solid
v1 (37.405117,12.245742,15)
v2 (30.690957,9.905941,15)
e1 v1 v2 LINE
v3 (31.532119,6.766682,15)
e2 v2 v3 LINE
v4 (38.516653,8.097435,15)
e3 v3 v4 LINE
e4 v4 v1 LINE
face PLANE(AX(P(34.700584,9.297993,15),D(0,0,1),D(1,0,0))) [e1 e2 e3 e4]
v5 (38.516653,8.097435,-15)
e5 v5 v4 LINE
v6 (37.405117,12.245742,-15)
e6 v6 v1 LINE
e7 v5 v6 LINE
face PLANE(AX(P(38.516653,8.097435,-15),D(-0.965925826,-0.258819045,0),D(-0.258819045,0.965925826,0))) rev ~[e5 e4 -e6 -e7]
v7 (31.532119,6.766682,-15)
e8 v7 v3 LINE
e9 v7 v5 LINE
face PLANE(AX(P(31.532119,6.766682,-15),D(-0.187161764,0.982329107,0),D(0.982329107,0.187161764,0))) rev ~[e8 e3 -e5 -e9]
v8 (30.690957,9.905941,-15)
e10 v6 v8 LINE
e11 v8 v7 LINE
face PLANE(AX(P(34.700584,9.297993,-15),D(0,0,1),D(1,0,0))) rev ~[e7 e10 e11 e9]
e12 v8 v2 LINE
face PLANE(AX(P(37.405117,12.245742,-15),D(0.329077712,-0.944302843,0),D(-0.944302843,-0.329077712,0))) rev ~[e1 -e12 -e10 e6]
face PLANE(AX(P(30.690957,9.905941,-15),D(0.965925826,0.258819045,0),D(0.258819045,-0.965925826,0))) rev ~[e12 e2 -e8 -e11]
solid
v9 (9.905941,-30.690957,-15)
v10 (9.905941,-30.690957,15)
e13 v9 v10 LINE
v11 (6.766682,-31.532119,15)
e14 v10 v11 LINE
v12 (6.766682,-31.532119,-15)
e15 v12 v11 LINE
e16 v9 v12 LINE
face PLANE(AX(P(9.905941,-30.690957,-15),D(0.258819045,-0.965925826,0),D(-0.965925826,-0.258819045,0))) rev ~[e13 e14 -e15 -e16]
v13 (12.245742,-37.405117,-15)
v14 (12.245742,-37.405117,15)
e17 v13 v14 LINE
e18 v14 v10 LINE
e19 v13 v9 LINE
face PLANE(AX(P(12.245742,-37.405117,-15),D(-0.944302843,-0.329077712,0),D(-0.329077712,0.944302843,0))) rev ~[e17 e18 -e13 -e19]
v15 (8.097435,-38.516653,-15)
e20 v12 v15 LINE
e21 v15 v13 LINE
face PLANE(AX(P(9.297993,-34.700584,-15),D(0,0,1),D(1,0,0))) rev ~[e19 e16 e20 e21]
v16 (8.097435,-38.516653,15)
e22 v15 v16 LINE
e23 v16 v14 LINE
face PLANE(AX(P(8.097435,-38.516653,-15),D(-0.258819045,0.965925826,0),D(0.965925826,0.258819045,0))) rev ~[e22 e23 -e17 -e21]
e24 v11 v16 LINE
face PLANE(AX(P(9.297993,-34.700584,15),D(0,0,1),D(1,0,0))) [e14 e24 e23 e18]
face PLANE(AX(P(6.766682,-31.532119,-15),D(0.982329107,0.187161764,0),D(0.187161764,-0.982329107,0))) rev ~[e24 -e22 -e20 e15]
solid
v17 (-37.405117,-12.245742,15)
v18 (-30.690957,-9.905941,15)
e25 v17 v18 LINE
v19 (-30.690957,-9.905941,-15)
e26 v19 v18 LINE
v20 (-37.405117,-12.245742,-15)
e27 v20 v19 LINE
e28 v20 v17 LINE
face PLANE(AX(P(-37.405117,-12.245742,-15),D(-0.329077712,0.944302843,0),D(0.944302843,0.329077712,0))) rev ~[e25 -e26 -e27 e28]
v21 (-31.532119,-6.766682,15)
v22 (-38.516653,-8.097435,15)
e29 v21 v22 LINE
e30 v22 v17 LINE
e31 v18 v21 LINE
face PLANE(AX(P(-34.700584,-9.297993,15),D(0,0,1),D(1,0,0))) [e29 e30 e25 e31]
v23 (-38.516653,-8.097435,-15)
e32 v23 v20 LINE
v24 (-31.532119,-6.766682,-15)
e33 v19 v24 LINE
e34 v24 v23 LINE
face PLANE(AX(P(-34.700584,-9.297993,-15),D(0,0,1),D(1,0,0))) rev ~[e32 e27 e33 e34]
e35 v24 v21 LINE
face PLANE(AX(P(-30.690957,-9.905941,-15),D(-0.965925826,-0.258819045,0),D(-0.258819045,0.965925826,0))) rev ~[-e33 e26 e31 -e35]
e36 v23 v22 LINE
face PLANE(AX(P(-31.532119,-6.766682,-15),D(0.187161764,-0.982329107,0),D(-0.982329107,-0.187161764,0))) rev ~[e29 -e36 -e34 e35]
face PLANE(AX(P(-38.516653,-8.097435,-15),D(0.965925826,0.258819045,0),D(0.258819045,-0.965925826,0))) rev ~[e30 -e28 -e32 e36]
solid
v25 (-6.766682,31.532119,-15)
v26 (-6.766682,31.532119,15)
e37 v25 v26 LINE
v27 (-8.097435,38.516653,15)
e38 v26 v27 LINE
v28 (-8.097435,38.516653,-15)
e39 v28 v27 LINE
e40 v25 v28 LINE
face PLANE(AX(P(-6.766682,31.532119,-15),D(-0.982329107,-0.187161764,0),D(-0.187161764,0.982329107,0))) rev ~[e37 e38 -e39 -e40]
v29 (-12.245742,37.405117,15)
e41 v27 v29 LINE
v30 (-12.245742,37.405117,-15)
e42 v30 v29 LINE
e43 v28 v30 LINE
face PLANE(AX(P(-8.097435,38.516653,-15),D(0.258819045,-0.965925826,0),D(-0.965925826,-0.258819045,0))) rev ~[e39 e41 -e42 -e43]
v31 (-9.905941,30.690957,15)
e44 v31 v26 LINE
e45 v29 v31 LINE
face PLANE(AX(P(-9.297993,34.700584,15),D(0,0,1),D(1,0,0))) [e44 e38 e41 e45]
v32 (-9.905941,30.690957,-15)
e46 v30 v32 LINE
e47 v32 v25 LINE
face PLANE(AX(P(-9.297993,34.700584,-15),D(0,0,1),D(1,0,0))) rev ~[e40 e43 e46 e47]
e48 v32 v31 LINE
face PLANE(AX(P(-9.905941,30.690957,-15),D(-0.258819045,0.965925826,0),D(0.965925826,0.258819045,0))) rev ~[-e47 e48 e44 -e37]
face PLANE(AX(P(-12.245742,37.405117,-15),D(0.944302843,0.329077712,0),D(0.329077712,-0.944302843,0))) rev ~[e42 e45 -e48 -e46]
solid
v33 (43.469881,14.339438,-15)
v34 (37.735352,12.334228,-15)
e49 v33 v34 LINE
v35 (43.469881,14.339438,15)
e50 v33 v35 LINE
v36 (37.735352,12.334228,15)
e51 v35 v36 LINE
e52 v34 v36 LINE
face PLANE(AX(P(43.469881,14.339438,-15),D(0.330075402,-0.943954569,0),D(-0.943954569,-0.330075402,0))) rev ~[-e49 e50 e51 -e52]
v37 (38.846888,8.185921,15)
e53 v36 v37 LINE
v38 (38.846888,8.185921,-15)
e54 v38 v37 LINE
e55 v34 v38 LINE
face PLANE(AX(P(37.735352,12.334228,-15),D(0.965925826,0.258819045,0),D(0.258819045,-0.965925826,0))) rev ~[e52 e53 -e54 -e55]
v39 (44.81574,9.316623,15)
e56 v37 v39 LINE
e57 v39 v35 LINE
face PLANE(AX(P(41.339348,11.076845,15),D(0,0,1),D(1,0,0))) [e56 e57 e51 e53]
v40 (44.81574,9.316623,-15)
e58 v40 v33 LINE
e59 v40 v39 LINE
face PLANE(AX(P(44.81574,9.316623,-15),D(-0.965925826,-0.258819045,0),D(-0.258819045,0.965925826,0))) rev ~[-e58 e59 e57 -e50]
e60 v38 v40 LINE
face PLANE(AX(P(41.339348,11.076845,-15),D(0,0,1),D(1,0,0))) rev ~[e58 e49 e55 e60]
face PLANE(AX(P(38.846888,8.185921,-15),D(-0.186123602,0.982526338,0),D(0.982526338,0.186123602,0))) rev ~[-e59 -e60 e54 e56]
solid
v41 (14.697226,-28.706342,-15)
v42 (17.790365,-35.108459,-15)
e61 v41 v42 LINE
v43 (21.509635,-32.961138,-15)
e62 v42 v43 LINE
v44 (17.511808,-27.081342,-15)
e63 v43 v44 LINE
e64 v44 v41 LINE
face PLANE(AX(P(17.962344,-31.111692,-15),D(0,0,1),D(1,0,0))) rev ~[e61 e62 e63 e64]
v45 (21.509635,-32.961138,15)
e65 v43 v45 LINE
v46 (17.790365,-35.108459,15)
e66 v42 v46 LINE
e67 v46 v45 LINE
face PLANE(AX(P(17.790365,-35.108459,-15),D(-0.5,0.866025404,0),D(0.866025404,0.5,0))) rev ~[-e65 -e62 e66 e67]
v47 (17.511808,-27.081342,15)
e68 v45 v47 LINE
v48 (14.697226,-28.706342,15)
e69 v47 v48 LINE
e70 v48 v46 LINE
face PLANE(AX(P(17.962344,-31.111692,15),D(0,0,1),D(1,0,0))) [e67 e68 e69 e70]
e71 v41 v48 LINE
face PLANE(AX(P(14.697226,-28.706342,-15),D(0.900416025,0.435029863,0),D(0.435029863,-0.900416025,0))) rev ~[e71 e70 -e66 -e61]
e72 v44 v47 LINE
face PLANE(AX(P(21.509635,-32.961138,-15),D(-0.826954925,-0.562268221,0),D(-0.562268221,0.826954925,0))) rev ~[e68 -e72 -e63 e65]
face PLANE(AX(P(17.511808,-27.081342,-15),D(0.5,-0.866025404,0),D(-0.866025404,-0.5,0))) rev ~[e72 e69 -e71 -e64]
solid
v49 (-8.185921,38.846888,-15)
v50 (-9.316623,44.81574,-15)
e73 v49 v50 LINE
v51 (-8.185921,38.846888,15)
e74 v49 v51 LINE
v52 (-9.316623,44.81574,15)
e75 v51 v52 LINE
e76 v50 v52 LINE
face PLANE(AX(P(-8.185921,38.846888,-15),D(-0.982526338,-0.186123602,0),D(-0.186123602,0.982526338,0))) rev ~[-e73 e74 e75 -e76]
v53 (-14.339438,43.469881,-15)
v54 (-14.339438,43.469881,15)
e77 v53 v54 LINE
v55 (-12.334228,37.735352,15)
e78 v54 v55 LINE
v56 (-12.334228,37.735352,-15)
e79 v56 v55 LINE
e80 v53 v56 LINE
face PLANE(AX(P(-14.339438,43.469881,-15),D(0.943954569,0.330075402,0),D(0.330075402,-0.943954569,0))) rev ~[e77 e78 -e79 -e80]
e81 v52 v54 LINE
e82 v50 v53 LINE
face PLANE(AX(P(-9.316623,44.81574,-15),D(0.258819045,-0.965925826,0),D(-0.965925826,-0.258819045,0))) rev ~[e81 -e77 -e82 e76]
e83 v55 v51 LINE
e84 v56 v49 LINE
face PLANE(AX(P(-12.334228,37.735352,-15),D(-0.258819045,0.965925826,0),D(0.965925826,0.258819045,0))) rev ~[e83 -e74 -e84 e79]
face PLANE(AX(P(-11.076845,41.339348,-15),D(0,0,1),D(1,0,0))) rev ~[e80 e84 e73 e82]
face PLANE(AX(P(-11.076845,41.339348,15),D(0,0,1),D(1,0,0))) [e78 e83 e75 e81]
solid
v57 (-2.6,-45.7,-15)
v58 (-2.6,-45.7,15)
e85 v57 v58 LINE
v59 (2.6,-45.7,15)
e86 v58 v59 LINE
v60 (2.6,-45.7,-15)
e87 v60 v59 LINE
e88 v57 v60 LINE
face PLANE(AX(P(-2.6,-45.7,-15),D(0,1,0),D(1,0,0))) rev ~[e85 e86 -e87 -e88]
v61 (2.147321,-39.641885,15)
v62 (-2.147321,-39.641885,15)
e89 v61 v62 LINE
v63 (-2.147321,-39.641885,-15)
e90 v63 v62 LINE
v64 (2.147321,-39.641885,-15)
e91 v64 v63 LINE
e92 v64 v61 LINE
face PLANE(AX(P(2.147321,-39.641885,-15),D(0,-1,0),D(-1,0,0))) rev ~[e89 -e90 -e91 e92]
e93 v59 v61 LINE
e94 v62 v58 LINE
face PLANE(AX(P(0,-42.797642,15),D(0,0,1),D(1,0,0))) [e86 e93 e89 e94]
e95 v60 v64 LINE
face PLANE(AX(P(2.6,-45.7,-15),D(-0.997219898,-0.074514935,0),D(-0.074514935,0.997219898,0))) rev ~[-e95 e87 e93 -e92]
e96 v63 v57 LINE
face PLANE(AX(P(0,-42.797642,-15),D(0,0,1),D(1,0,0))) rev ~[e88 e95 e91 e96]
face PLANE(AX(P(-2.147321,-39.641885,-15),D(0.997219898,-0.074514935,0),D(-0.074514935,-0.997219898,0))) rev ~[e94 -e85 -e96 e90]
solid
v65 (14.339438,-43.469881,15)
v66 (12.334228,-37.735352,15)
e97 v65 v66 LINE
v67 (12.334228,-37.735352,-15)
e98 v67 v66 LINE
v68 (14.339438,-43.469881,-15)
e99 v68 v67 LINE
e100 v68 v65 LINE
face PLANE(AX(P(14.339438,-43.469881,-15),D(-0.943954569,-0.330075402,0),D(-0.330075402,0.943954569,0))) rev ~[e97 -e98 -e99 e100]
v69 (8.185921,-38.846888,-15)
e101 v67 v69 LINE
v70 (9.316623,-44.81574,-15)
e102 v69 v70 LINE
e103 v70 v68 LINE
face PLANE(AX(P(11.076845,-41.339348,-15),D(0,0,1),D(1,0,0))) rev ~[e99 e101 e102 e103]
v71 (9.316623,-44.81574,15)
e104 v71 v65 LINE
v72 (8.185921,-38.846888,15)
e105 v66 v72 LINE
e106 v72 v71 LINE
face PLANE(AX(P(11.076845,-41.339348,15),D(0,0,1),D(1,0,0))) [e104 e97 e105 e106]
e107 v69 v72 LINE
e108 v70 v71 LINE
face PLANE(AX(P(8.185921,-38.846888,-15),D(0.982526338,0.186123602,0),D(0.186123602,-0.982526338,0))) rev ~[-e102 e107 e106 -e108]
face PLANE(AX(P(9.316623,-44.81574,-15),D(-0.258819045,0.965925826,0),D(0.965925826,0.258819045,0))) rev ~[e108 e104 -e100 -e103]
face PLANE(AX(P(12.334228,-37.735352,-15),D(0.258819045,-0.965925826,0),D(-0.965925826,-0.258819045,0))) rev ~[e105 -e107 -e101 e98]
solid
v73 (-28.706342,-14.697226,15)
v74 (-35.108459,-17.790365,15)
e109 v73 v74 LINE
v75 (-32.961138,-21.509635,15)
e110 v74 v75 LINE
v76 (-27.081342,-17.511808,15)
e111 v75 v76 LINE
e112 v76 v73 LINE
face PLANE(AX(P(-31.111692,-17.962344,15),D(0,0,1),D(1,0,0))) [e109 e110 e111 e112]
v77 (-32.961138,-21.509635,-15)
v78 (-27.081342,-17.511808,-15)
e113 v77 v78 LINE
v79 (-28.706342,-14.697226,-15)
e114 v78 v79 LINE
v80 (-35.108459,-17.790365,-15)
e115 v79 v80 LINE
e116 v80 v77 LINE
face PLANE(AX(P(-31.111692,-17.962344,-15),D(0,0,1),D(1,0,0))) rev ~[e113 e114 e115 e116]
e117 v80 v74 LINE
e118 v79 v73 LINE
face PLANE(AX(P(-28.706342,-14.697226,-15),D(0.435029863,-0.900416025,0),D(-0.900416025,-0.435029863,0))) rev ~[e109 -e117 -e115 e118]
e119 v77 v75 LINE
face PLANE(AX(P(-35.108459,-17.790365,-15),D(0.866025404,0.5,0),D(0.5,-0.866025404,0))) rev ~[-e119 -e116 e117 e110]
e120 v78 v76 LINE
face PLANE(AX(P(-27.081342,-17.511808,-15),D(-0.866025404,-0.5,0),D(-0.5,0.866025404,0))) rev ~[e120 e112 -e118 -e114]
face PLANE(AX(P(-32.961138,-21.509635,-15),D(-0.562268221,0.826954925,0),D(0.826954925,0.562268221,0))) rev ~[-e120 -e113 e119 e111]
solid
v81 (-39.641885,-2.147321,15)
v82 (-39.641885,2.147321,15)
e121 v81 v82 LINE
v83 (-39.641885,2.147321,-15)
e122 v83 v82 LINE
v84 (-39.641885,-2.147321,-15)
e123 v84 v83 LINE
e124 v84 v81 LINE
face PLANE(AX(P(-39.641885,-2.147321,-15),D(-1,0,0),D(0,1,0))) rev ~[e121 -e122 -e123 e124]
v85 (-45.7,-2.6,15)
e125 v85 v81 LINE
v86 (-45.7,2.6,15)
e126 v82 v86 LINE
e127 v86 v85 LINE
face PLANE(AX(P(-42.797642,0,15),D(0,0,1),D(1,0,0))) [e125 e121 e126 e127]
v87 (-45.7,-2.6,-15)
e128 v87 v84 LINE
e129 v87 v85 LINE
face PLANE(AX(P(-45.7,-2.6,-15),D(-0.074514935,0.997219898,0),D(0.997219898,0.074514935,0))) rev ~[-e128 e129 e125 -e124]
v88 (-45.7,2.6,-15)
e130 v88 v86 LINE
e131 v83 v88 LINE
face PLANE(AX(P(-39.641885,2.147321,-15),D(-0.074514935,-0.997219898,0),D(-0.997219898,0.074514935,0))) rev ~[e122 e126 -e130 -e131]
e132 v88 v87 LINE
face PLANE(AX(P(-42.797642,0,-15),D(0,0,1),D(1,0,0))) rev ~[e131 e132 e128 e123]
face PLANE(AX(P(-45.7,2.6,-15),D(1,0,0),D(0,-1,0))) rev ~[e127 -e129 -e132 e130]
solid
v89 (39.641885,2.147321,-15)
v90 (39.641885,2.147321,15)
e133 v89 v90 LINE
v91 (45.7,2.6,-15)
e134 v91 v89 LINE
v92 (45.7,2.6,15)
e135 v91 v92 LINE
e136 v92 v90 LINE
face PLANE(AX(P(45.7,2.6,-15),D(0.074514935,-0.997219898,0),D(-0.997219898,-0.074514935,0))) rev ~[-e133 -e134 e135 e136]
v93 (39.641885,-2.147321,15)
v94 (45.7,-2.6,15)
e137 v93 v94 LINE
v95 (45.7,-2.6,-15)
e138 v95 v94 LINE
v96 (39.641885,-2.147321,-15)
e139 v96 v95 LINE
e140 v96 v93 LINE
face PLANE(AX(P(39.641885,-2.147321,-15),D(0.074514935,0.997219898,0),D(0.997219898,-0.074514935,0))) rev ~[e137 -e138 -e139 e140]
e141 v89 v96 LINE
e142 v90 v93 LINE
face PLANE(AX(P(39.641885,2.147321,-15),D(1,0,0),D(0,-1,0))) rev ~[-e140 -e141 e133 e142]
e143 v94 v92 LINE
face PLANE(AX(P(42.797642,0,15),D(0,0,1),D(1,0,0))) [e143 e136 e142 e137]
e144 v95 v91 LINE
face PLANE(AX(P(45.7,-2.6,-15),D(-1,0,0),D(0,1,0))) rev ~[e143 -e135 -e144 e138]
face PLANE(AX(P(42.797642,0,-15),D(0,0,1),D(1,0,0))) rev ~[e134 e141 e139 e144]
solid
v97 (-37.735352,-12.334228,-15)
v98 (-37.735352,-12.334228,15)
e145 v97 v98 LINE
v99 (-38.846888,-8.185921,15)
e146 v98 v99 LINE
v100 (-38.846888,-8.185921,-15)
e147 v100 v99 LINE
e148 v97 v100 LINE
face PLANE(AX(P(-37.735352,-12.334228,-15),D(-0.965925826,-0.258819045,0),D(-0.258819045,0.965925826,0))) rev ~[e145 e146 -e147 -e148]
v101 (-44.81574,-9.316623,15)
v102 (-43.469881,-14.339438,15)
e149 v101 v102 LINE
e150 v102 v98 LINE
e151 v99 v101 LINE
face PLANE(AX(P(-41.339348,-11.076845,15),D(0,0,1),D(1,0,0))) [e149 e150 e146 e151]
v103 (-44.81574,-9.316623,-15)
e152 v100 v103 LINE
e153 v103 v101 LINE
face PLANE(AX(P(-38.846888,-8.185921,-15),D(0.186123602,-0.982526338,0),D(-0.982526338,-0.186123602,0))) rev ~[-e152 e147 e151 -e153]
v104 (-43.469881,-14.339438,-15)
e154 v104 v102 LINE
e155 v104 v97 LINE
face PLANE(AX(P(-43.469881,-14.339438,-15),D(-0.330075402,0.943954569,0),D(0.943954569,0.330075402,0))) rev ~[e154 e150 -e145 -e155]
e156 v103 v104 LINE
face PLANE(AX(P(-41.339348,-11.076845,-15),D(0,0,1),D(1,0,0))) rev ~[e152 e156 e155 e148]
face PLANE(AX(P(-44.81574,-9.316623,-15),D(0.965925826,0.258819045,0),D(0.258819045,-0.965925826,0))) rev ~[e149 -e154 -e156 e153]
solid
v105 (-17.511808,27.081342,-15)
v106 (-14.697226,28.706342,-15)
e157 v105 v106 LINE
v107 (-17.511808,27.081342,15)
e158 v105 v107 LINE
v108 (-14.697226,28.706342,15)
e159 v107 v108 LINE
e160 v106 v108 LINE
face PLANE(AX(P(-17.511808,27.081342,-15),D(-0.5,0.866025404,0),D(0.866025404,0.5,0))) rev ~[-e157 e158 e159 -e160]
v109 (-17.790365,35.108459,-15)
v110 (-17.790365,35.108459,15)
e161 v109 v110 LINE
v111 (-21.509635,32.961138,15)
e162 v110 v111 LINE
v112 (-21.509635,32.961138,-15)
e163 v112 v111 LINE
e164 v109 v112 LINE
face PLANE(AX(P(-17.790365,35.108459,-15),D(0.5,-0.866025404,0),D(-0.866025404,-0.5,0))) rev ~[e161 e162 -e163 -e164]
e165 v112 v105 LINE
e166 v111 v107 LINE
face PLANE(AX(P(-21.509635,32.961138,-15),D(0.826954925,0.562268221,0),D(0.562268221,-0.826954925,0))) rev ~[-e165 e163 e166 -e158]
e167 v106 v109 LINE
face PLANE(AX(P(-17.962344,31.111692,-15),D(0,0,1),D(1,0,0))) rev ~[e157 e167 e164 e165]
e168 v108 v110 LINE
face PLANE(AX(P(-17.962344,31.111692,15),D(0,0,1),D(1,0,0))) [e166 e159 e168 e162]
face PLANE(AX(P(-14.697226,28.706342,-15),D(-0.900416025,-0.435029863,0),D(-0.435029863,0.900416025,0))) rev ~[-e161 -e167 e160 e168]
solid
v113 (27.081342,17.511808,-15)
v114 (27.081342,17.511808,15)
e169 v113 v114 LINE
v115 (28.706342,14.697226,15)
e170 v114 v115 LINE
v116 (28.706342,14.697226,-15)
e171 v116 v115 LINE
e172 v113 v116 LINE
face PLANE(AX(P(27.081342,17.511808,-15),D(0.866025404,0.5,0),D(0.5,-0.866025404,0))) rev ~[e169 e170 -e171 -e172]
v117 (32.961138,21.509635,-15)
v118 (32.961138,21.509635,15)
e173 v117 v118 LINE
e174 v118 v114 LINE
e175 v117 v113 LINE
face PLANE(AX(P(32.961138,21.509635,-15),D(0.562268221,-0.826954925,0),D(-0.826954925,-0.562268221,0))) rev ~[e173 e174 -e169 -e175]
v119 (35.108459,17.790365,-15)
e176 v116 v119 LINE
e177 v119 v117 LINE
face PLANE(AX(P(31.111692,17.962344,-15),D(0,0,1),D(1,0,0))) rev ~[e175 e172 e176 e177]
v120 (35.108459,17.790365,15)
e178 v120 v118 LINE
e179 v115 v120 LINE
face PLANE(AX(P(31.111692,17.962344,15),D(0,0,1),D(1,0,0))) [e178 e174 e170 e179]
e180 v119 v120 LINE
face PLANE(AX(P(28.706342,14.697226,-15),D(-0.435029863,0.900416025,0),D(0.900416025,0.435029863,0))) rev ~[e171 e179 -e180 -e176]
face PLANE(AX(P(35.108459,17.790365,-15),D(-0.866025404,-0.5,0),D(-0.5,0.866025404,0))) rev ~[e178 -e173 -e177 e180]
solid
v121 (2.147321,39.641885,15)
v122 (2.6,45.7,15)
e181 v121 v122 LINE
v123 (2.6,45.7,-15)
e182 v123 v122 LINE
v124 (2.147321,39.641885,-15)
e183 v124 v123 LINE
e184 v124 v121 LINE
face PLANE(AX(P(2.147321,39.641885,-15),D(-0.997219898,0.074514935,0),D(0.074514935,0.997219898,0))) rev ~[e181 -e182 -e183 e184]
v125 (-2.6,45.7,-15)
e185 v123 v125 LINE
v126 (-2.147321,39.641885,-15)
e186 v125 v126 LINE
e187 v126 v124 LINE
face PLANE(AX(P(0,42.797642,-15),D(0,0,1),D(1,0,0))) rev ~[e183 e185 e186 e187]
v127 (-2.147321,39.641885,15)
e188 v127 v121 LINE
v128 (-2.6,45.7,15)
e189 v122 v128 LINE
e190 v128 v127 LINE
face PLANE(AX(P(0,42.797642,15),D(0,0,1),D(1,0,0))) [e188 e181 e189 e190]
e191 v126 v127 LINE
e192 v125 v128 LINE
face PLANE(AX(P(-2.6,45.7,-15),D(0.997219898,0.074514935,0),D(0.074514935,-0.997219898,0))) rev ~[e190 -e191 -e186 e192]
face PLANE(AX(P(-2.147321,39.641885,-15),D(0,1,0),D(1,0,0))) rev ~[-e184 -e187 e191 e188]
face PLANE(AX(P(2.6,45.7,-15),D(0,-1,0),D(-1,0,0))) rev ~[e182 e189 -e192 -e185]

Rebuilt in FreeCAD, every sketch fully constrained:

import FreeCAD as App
import Part
import Sketcher
from FreeCAD import Vector
Q = App.Units.Quantity

doc = App.newDocument("Part")
params = doc.addObject("Spreadsheet::Sheet", "Params")
for row, (alias, value) in enumerate([
    ("sketch1_height", "5.2 mm"),
    ("pad1_length", "30 mm"),
    ("sketch2_length", "3.25 mm"),
    ("pad2_length", "30 mm"),
    ("sketch3_length", "5.2 mm"),
    ("pad3_length", "30 mm"),
    ("sketch4_length", "3.25 mm"),
    ("pad4_length", "30 mm"),
    ("sketch5_width", "5.2 mm"),
    ("pad5_length", "30 mm"),
    ("sketch6_length", "3.25 mm"),
    ("pad6_length", "30 mm"),
    ("sketch7_length", "5.2 mm"),
    ("pad7_length", "30 mm"),
    ("sketch8_length", "3.25 mm"),
    ("pad8_length", "30 mm"),
    ("sketch9_height", "5.2 mm"),
    ("pad9_length", "30 mm"),
    ("sketch10_length", "3.25 mm"),
    ("pad10_length", "30 mm"),
    ("sketch11_length", "5.2 mm"),
    ("pad11_length", "30 mm"),
    ("sketch12_length", "3.25 mm"),
    ("pad12_length", "30 mm"),
    ("sketch13_width", "5.2 mm"),
    ("pad13_length", "30 mm"),
    ("sketch14_length", "3.25 mm"),
    ("pad14_length", "30 mm"),
    ("sketch15_length", "5.2 mm"),
    ("pad15_length", "30 mm"),
    ("sketch16_length", "3.25 mm"),
    ("pad16_length", "30 mm"),
], start=1):
    params.set(f"A{row}", alias)
    params.set(f"B{row}", "=" + value)
    params.setAlias(f"B{row}", alias)

body = doc.addObject("PartDesign::Body", "Body")

# Sketch on XY plane
sketch1 = body.newObject("Sketcher::SketchObject", "Sketch")
sketch1.AttachmentSupport = (doc.getObject("XY_Plane"), [""])
sketch1.MapMode = "FlatFace"
sketch1.AttachmentOffset = App.Placement(Vector(0, 0, -15), App.Rotation())
sketch1.addGeometry([
    Part.LineSegment(Vector(39.6, -2.1, 0), Vector(45.7, -2.6, 0)),
    Part.LineSegment(Vector(45.7, -2.6, 0), Vector(45.7, 2.6, 0)),
    Part.LineSegment(Vector(45.7, 2.6, 0), Vector(39.6, 2.1, 0)),
    Part.LineSegment(Vector(39.6, 2.1, 0), Vector(39.6, -2.1, 0)),
], False)
sketch1.addConstraint([
    Sketcher.Constraint("Coincident", 0, 2, 1, 1),
    Sketcher.Constraint("Coincident", 1, 2, 2, 1),
    Sketcher.Constraint("Coincident", 2, 2, 3, 1),
    Sketcher.Constraint("Coincident", 3, 2, 0, 1),
    Sketcher.Constraint("Vertical", 1),
    Sketcher.Constraint("Vertical", 3),
    Sketcher.Constraint("Equal", 0, 2),
    Sketcher.Constraint("DistanceY", 1, 1, 1, 2, 5.2),
    Sketcher.Constraint("DistanceX", -1, 1, 0, 2, 45.7),
    Sketcher.Constraint("DistanceY", 0, 2, -1, 1, 2.6),
    Sketcher.Constraint("DistanceY", 3, 2, 3, 1, 4.294643),
    Sketcher.Constraint("Distance", 0, 6.075005),
])
sketch1.setExpression("Constraints[7]", "Params.sketch1_height")
pad1 = body.newObject("PartDesign::Pad", "Pad")
pad1.Profile = sketch1
pad1.setExpression("Length", "Params.pad1_length")
body2 = doc.addObject("PartDesign::Body", "Body001")

# Sketch on XY plane
sketch2 = body2.newObject("Sketcher::SketchObject", "Sketch001")
sketch2.AttachmentSupport = (doc.getObject("XY_Plane001"), [""])
sketch2.MapMode = "FlatFace"
sketch2.AttachmentOffset = App.Placement(Vector(0, 0, -15), App.Rotation())
sketch2.addGeometry([
    Part.LineSegment(Vector(31.5, 6.8, 0), Vector(38.5, 8.1, 0)),
    Part.LineSegment(Vector(38.5, 8.1, 0), Vector(37.4, 12.2, 0)),
    Part.LineSegment(Vector(37.4, 12.2, 0), Vector(30.7, 9.9, 0)),
    Part.LineSegment(Vector(30.7, 9.9, 0), Vector(31.5, 6.8, 0)),
], False)
sketch2.addConstraint([
    Sketcher.Constraint("Coincident", 0, 2, 1, 1),
    Sketcher.Constraint("Coincident", 1, 2, 2, 1),
    Sketcher.Constraint("Coincident", 2, 2, 3, 1),
    Sketcher.Constraint("Coincident", 3, 2, 0, 1),
    Sketcher.Constraint("Parallel", 1, 3),
    Sketcher.Constraint("Equal", 0, 2),
    Sketcher.Constraint("Angle", 1, Q("105 deg")),
    Sketcher.Constraint("Distance", 3, 3.25),
    Sketcher.Constraint("DistanceX", 3, 2, 1, 2, 5.872999),
    Sketcher.Constraint("DistanceY", 2, 2, 1, 2, 2.339801),
    Sketcher.Constraint("DistanceY", -1, 1, 1, 2, 12.245742),
    Sketcher.Constraint("DistanceX", -1, 1, 3, 2, 31.532119),
])
sketch2.setExpression("Constraints[7]", "Params.sketch2_length")
pad2 = body2.newObject("PartDesign::Pad", "Pad001")
pad2.Profile = sketch2
pad2.setExpression("Length", "Params.pad2_length")
body3 = doc.addObject("PartDesign::Body", "Body002")

# Sketch on XY plane
sketch3 = body3.newObject("Sketcher::SketchObject", "Sketch002")
sketch3.AttachmentSupport = (doc.getObject("XY_Plane002"), [""])
sketch3.MapMode = "FlatFace"
sketch3.AttachmentOffset = App.Placement(Vector(0, 0, -15), App.Rotation())
sketch3.addGeometry([
    Part.LineSegment(Vector(38.8, 8.2, 0), Vector(44.8, 9.3, 0)),
    Part.LineSegment(Vector(44.8, 9.3, 0), Vector(43.5, 14.3, 0)),
    Part.LineSegment(Vector(43.5, 14.3, 0), Vector(37.7, 12.3, 0)),
    Part.LineSegment(Vector(37.7, 12.3, 0), Vector(38.8, 8.2, 0)),
], False)
sketch3.addConstraint([
    Sketcher.Constraint("Coincident", 0, 2, 1, 1),
    Sketcher.Constraint("Coincident", 1, 2, 2, 1),
    Sketcher.Constraint("Coincident", 2, 2, 3, 1),
    Sketcher.Constraint("Coincident", 3, 2, 0, 1),
    Sketcher.Constraint("Parallel", 1, 3),
    Sketcher.Constraint("Equal", 0, 2),
    Sketcher.Constraint("Angle", 1, Q("105 deg")),
    Sketcher.Constraint("Distance", 1, 5.2),
    Sketcher.Constraint("DistanceY", 3, 2, 0, 2, 1.130702),
    Sketcher.Constraint("DistanceX", -1, 1, 0, 2, 44.81574),
    Sketcher.Constraint("DistanceY", -1, 1, 3, 2, 8.185921),
    Sketcher.Constraint("DistanceX", 2, 2, 1, 2, 5.734528),
])
sketch3.setExpression("Constraints[7]", "Params.sketch3_length")
pad3 = body3.newObject("PartDesign::Pad", "Pad002")
pad3.Profile = sketch3
pad3.setExpression("Length", "Params.pad3_length")
body4 = doc.addObject("PartDesign::Body", "Body003")

# Sketch on XY plane
sketch4 = body4.newObject("Sketcher::SketchObject", "Sketch003")
sketch4.AttachmentSupport = (doc.getObject("XY_Plane003"), [""])
sketch4.MapMode = "FlatFace"
sketch4.AttachmentOffset = App.Placement(Vector(0, 0, -15), App.Rotation())
sketch4.addGeometry([
    Part.LineSegment(Vector(28.7, 14.7, 0), Vector(35.1, 17.8, 0)),
    Part.LineSegment(Vector(35.1, 17.8, 0), Vector(33, 21.5, 0)),
    Part.LineSegment(Vector(33, 21.5, 0), Vector(27.1, 17.5, 0)),
    Part.LineSegment(Vector(27.1, 17.5, 0), Vector(28.7, 14.7, 0)),
], False)
sketch4.addConstraint([
    Sketcher.Constraint("Coincident", 0, 2, 1, 1),
    Sketcher.Constraint("Coincident", 1, 2, 2, 1),
    Sketcher.Constraint("Coincident", 2, 2, 3, 1),
    Sketcher.Constraint("Coincident", 3, 2, 0, 1),
    Sketcher.Constraint("Parallel", 1, 3),
    Sketcher.Constraint("Equal", 0, 2),
    Sketcher.Constraint("Angle", 1, Q("120 deg")),
    Sketcher.Constraint("Distance", 3, 3.25),
    Sketcher.Constraint("DistanceX", -1, 1, 0, 2, 35.108459),
    Sketcher.Constraint("DistanceX", -1, 1, 2, 2, 27.081342),
    Sketcher.Constraint("DistanceY", -1, 1, 2, 2, 17.511808),
    Sketcher.Constraint("DistanceX", 1, 2, 0, 2, 2.147321),
])
sketch4.setExpression("Constraints[7]", "Params.sketch4_length")
pad4 = body4.newObject("PartDesign::Pad", "Pad003")
pad4.Profile = sketch4
pad4.setExpression("Length", "Params.pad4_length")
body5 = doc.addObject("PartDesign::Body", "Body004")

# Sketch on XY plane
sketch5 = body5.newObject("Sketcher::SketchObject", "Sketch004")
sketch5.AttachmentSupport = (doc.getObject("XY_Plane004"), [""])
sketch5.MapMode = "FlatFace"
sketch5.AttachmentOffset = App.Placement(Vector(0, 0, -15), App.Rotation())
sketch5.addGeometry([
    Part.LineSegment(Vector(2.1, 39.6, 0), Vector(2.6, 45.7, 0)),
    Part.LineSegment(Vector(2.6, 45.7, 0), Vector(-2.6, 45.7, 0)),
    Part.LineSegment(Vector(-2.6, 45.7, 0), Vector(-2.1, 39.6, 0)),
    Part.LineSegment(Vector(-2.1, 39.6, 0), Vector(2.1, 39.6, 0)),
], False)
sketch5.addConstraint([
    Sketcher.Constraint("Coincident", 0, 2, 1, 1),
    Sketcher.Constraint("Coincident", 1, 2, 2, 1),
    Sketcher.Constraint("Coincident", 2, 2, 3, 1),
    Sketcher.Constraint("Coincident", 3, 2, 0, 1),
    Sketcher.Constraint("Horizontal", 1),
    Sketcher.Constraint("Horizontal", 3),
    Sketcher.Constraint("Equal", 0, 2),
    Sketcher.Constraint("DistanceX", 1, 2, 1, 1, 5.2),
    Sketcher.Constraint("DistanceX", -1, 1, 0, 2, 2.6),
    Sketcher.Constraint("DistanceY", -1, 1, 0, 2, 45.7),
    Sketcher.Constraint("DistanceX", 3, 1, 3, 2, 4.294643),
    Sketcher.Constraint("Distance", 0, 6.075005),
])
sketch5.setExpression("Constraints[7]", "Params.sketch5_width")
pad5 = body5.newObject("PartDesign::Pad", "Pad004")
pad5.Profile = sketch5
pad5.setExpression("Length", "Params.pad5_length")
body6 = doc.addObject("PartDesign::Body", "Body005")

# Sketch on XY plane
sketch6 = body6.newObject("Sketcher::SketchObject", "Sketch005")
sketch6.AttachmentSupport = (doc.getObject("XY_Plane005"), [""])
sketch6.MapMode = "FlatFace"
sketch6.AttachmentOffset = App.Placement(Vector(0, 0, -15), App.Rotation())
sketch6.addGeometry([
    Part.LineSegment(Vector(-6.8, 31.5, 0), Vector(-8.1, 38.5, 0)),
    Part.LineSegment(Vector(-8.1, 38.5, 0), Vector(-12.2, 37.4, 0)),
    Part.LineSegment(Vector(-12.2, 37.4, 0), Vector(-9.9, 30.7, 0)),
    Part.LineSegment(Vector(-9.9, 30.7, 0), Vector(-6.8, 31.5, 0)),
], False)
sketch6.addConstraint([
    Sketcher.Constraint("Coincident", 0, 2, 1, 1),
    Sketcher.Constraint("Coincident", 1, 2, 2, 1),
    Sketcher.Constraint("Coincident", 2, 2, 3, 1),
    Sketcher.Constraint("Coincident", 3, 2, 0, 1),
    Sketcher.Constraint("Parallel", 1, 3),
    Sketcher.Constraint("Equal", 0, 2),
    Sketcher.Constraint("Angle", 1, Q("-165 deg")),
    Sketcher.Constraint("Distance", 3, 3.25),
    Sketcher.Constraint("DistanceY", 3, 2, 1, 2, 5.872999),
    Sketcher.Constraint("DistanceX", 1, 2, 2, 2, 2.339801),
    Sketcher.Constraint("DistanceX", 1, 2, -1, 1, 12.245742),
    Sketcher.Constraint("DistanceY", -1, 1, 3, 2, 31.532119),
])
sketch6.setExpression("Constraints[7]", "Params.sketch6_length")
pad6 = body6.newObject("PartDesign::Pad", "Pad005")
pad6.Profile = sketch6
pad6.setExpression("Length", "Params.pad6_length")
body7 = doc.addObject("PartDesign::Body", "Body006")

# Sketch on XY plane
sketch7 = body7.newObject("Sketcher::SketchObject", "Sketch006")
sketch7.AttachmentSupport = (doc.getObject("XY_Plane006"), [""])
sketch7.MapMode = "FlatFace"
sketch7.AttachmentOffset = App.Placement(Vector(0, 0, -15), App.Rotation())
sketch7.addGeometry([
    Part.LineSegment(Vector(-8.2, 38.8, 0), Vector(-9.3, 44.8, 0)),
    Part.LineSegment(Vector(-9.3, 44.8, 0), Vector(-14.3, 43.5, 0)),
    Part.LineSegment(Vector(-14.3, 43.5, 0), Vector(-12.3, 37.7, 0)),
    Part.LineSegment(Vector(-12.3, 37.7, 0), Vector(-8.2, 38.8, 0)),
], False)
sketch7.addConstraint([
    Sketcher.Constraint("Coincident", 0, 2, 1, 1),
    Sketcher.Constraint("Coincident", 1, 2, 2, 1),
    Sketcher.Constraint("Coincident", 2, 2, 3, 1),
    Sketcher.Constraint("Coincident", 3, 2, 0, 1),
    Sketcher.Constraint("Parallel", 1, 3),
    Sketcher.Constraint("Equal", 0, 2),
    Sketcher.Constraint("Angle", 1, Q("-165 deg")),
    Sketcher.Constraint("Distance", 1, 5.2),
    Sketcher.Constraint("DistanceX", 0, 2, 3, 2, 1.130702),
    Sketcher.Constraint("DistanceY", -1, 1, 0, 2, 44.81574),
    Sketcher.Constraint("DistanceX", 3, 2, -1, 1, 8.185921),
    Sketcher.Constraint("DistanceX", 1, 2, 2, 2, 2.00521),
])
sketch7.setExpression("Constraints[7]", "Params.sketch7_length")
pad7 = body7.newObject("PartDesign::Pad", "Pad006")
pad7.Profile = sketch7
pad7.setExpression("Length", "Params.pad7_length")
body8 = doc.addObject("PartDesign::Body", "Body007")

# Sketch on XY plane
sketch8 = body8.newObject("Sketcher::SketchObject", "Sketch007")
sketch8.AttachmentSupport = (doc.getObject("XY_Plane007"), [""])
sketch8.MapMode = "FlatFace"
sketch8.AttachmentOffset = App.Placement(Vector(0, 0, -15), App.Rotation())
sketch8.addGeometry([
    Part.LineSegment(Vector(-14.7, 28.7, 0), Vector(-17.8, 35.1, 0)),
    Part.LineSegment(Vector(-17.8, 35.1, 0), Vector(-21.5, 33, 0)),
    Part.LineSegment(Vector(-21.5, 33, 0), Vector(-17.5, 27.1, 0)),
    Part.LineSegment(Vector(-17.5, 27.1, 0), Vector(-14.7, 28.7, 0)),
], False)
sketch8.addConstraint([
    Sketcher.Constraint("Coincident", 0, 2, 1, 1),
    Sketcher.Constraint("Coincident", 1, 2, 2, 1),
    Sketcher.Constraint("Coincident", 2, 2, 3, 1),
    Sketcher.Constraint("Coincident", 3, 2, 0, 1),
    Sketcher.Constraint("Parallel", 1, 3),
    Sketcher.Constraint("Equal", 0, 2),
    Sketcher.Constraint("Angle", 1, Q("-150 deg")),
    Sketcher.Constraint("Distance", 3, 3.25),
    Sketcher.Constraint("DistanceY", -1, 1, 0, 2, 35.108459),
    Sketcher.Constraint("DistanceX", 2, 2, -1, 1, 17.511808),
    Sketcher.Constraint("DistanceY", -1, 1, 2, 2, 27.081342),
    Sketcher.Constraint("DistanceX", 1, 2, 0, 2, 3.71927),
])
sketch8.setExpression("Constraints[7]", "Params.sketch8_length")
pad8 = body8.newObject("PartDesign::Pad", "Pad007")
pad8.Profile = sketch8
pad8.setExpression("Length", "Params.pad8_length")
body9 = doc.addObject("PartDesign::Body", "Body008")

# Sketch on XY plane
sketch9 = body9.newObject("Sketcher::SketchObject", "Sketch008")
sketch9.AttachmentSupport = (doc.getObject("XY_Plane008"), [""])
sketch9.MapMode = "FlatFace"
sketch9.AttachmentOffset = App.Placement(Vector(0, 0, -15), App.Rotation())
sketch9.addGeometry([
    Part.LineSegment(Vector(-39.6, 2.1, 0), Vector(-45.7, 2.6, 0)),
    Part.LineSegment(Vector(-45.7, 2.6, 0), Vector(-45.7, -2.6, 0)),
    Part.LineSegment(Vector(-45.7, -2.6, 0), Vector(-39.6, -2.1, 0)),
    Part.LineSegment(Vector(-39.6, -2.1, 0), Vector(-39.6, 2.1, 0)),
], False)
sketch9.addConstraint([
    Sketcher.Constraint("Coincident", 0, 2, 1, 1),
    Sketcher.Constraint("Coincident", 1, 2, 2, 1),
    Sketcher.Constraint("Coincident", 2, 2, 3, 1),
    Sketcher.Constraint("Coincident", 3, 2, 0, 1),
    Sketcher.Constraint("Vertical", 1),
    Sketcher.Constraint("Vertical", 3),
    Sketcher.Constraint("Equal", 0, 2),
    Sketcher.Constraint("DistanceY", 1, 2, 1, 1, 5.2),
    Sketcher.Constraint("DistanceX", 0, 2, -1, 1, 45.7),
    Sketcher.Constraint("DistanceY", -1, 1, 0, 2, 2.6),
    Sketcher.Constraint("DistanceY", 3, 1, 3, 2, 4.294643),
    Sketcher.Constraint("Distance", 0, 6.075005),
])
sketch9.setExpression("Constraints[7]", "Params.sketch9_height")
pad9 = body9.newObject("PartDesign::Pad", "Pad008")
pad9.Profile = sketch9
pad9.setExpression("Length", "Params.pad9_length")
body10 = doc.addObject("PartDesign::Body", "Body009")

# Sketch on XY plane
sketch10 = body10.newObject("Sketcher::SketchObject", "Sketch009")
sketch10.AttachmentSupport = (doc.getObject("XY_Plane009"), [""])
sketch10.MapMode = "FlatFace"
sketch10.AttachmentOffset = App.Placement(Vector(0, 0, -15), App.Rotation())
sketch10.addGeometry([
    Part.LineSegment(Vector(-31.5, -6.8, 0), Vector(-38.5, -8.1, 0)),
    Part.LineSegment(Vector(-38.5, -8.1, 0), Vector(-37.4, -12.2, 0)),
    Part.LineSegment(Vector(-37.4, -12.2, 0), Vector(-30.7, -9.9, 0)),
    Part.LineSegment(Vector(-30.7, -9.9, 0), Vector(-31.5, -6.8, 0)),
], False)
sketch10.addConstraint([
    Sketcher.Constraint("Coincident", 0, 2, 1, 1),
    Sketcher.Constraint("Coincident", 1, 2, 2, 1),
    Sketcher.Constraint("Coincident", 2, 2, 3, 1),
    Sketcher.Constraint("Coincident", 3, 2, 0, 1),
    Sketcher.Constraint("Parallel", 1, 3),
    Sketcher.Constraint("Equal", 0, 2),
    Sketcher.Constraint("Angle", 1, Q("-75 deg")),
    Sketcher.Constraint("Distance", 3, 3.25),
    Sketcher.Constraint("DistanceX", 1, 2, 3, 2, 5.872999),
    Sketcher.Constraint("DistanceY", 1, 2, 2, 2, 2.339801),
    Sketcher.Constraint("DistanceY", 1, 2, -1, 1, 12.245742),
    Sketcher.Constraint("DistanceX", 3, 2, -1, 1, 31.532119),
])
sketch10.setExpression("Constraints[7]", "Params.sketch10_length")
pad10 = body10.newObject("PartDesign::Pad", "Pad009")
pad10.Profile = sketch10
pad10.setExpression("Length", "Params.pad10_length")
body11 = doc.addObject("PartDesign::Body", "Body010")

# Sketch on XY plane
sketch11 = body11.newObject("Sketcher::SketchObject", "Sketch010")
sketch11.AttachmentSupport = (doc.getObject("XY_Plane010"), [""])
sketch11.MapMode = "FlatFace"
sketch11.AttachmentOffset = App.Placement(Vector(0, 0, -15), App.Rotation())
sketch11.addGeometry([
    Part.LineSegment(Vector(-38.8, -8.2, 0), Vector(-44.8, -9.3, 0)),
    Part.LineSegment(Vector(-44.8, -9.3, 0), Vector(-43.5, -14.3, 0)),
    Part.LineSegment(Vector(-43.5, -14.3, 0), Vector(-37.7, -12.3, 0)),
    Part.LineSegment(Vector(-37.7, -12.3, 0), Vector(-38.8, -8.2, 0)),
], False)
sketch11.addConstraint([
    Sketcher.Constraint("Coincident", 0, 2, 1, 1),
    Sketcher.Constraint("Coincident", 1, 2, 2, 1),
    Sketcher.Constraint("Coincident", 2, 2, 3, 1),
    Sketcher.Constraint("Coincident", 3, 2, 0, 1),
    Sketcher.Constraint("Parallel", 1, 3),
    Sketcher.Constraint("Equal", 0, 2),
    Sketcher.Constraint("Angle", 1, Q("-75 deg")),
    Sketcher.Constraint("Distance", 1, 5.2),
    Sketcher.Constraint("DistanceY", 0, 2, 3, 2, 1.130702),
    Sketcher.Constraint("DistanceX", 0, 2, -1, 1, 44.81574),
    Sketcher.Constraint("DistanceY", 3, 2, -1, 1, 8.185921),
    Sketcher.Constraint("DistanceX", 1, 2, 2, 2, 5.734528),
])
sketch11.setExpression("Constraints[7]", "Params.sketch11_length")
pad11 = body11.newObject("PartDesign::Pad", "Pad010")
pad11.Profile = sketch11
pad11.setExpression("Length", "Params.pad11_length")
body12 = doc.addObject("PartDesign::Body", "Body011")

# Sketch on XY plane
sketch12 = body12.newObject("Sketcher::SketchObject", "Sketch011")
sketch12.AttachmentSupport = (doc.getObject("XY_Plane011"), [""])
sketch12.MapMode = "FlatFace"
sketch12.AttachmentOffset = App.Placement(Vector(0, 0, -15), App.Rotation())
sketch12.addGeometry([
    Part.LineSegment(Vector(-28.7, -14.7, 0), Vector(-35.1, -17.8, 0)),
    Part.LineSegment(Vector(-35.1, -17.8, 0), Vector(-33, -21.5, 0)),
    Part.LineSegment(Vector(-33, -21.5, 0), Vector(-27.1, -17.5, 0)),
    Part.LineSegment(Vector(-27.1, -17.5, 0), Vector(-28.7, -14.7, 0)),
], False)
sketch12.addConstraint([
    Sketcher.Constraint("Coincident", 0, 2, 1, 1),
    Sketcher.Constraint("Coincident", 1, 2, 2, 1),
    Sketcher.Constraint("Coincident", 2, 2, 3, 1),
    Sketcher.Constraint("Coincident", 3, 2, 0, 1),
    Sketcher.Constraint("Parallel", 1, 3),
    Sketcher.Constraint("Equal", 0, 2),
    Sketcher.Constraint("Angle", 1, Q("-60 deg")),
    Sketcher.Constraint("Distance", 3, 3.25),
    Sketcher.Constraint("DistanceX", 0, 2, -1, 1, 35.108459),
    Sketcher.Constraint("DistanceX", 2, 2, -1, 1, 27.081342),
    Sketcher.Constraint("DistanceY", 2, 2, -1, 1, 17.511808),
    Sketcher.Constraint("DistanceX", 0, 2, 1, 2, 2.147321),
])
sketch12.setExpression("Constraints[7]", "Params.sketch12_length")
pad12 = body12.newObject("PartDesign::Pad", "Pad011")
pad12.Profile = sketch12
pad12.setExpression("Length", "Params.pad12_length")
body13 = doc.addObject("PartDesign::Body", "Body012")

# Sketch on XY plane
sketch13 = body13.newObject("Sketcher::SketchObject", "Sketch012")
sketch13.AttachmentSupport = (doc.getObject("XY_Plane012"), [""])
sketch13.MapMode = "FlatFace"
sketch13.AttachmentOffset = App.Placement(Vector(0, 0, -15), App.Rotation())
sketch13.addGeometry([
    Part.LineSegment(Vector(-2.1, -39.6, 0), Vector(-2.6, -45.7, 0)),
    Part.LineSegment(Vector(-2.6, -45.7, 0), Vector(2.6, -45.7, 0)),
    Part.LineSegment(Vector(2.6, -45.7, 0), Vector(2.1, -39.6, 0)),
    Part.LineSegment(Vector(2.1, -39.6, 0), Vector(-2.1, -39.6, 0)),
], False)
sketch13.addConstraint([
    Sketcher.Constraint("Coincident", 0, 2, 1, 1),
    Sketcher.Constraint("Coincident", 1, 2, 2, 1),
    Sketcher.Constraint("Coincident", 2, 2, 3, 1),
    Sketcher.Constraint("Coincident", 3, 2, 0, 1),
    Sketcher.Constraint("Horizontal", 1),
    Sketcher.Constraint("Horizontal", 3),
    Sketcher.Constraint("Equal", 0, 2),
    Sketcher.Constraint("DistanceX", 1, 1, 1, 2, 5.2),
    Sketcher.Constraint("DistanceX", 0, 2, -1, 1, 2.6),
    Sketcher.Constraint("DistanceY", 0, 2, -1, 1, 45.7),
    Sketcher.Constraint("DistanceX", 3, 2, 3, 1, 4.294643),
    Sketcher.Constraint("Distance", 0, 6.075005),
])
sketch13.setExpression("Constraints[7]", "Params.sketch13_width")
pad13 = body13.newObject("PartDesign::Pad", "Pad012")
pad13.Profile = sketch13
pad13.setExpression("Length", "Params.pad13_length")
body14 = doc.addObject("PartDesign::Body", "Body013")

# Sketch on XY plane
sketch14 = body14.newObject("Sketcher::SketchObject", "Sketch013")
sketch14.AttachmentSupport = (doc.getObject("XY_Plane013"), [""])
sketch14.MapMode = "FlatFace"
sketch14.AttachmentOffset = App.Placement(Vector(0, 0, -15), App.Rotation())
sketch14.addGeometry([
    Part.LineSegment(Vector(6.8, -31.5, 0), Vector(8.1, -38.5, 0)),
    Part.LineSegment(Vector(8.1, -38.5, 0), Vector(12.2, -37.4, 0)),
    Part.LineSegment(Vector(12.2, -37.4, 0), Vector(9.9, -30.7, 0)),
    Part.LineSegment(Vector(9.9, -30.7, 0), Vector(6.8, -31.5, 0)),
], False)
sketch14.addConstraint([
    Sketcher.Constraint("Coincident", 0, 2, 1, 1),
    Sketcher.Constraint("Coincident", 1, 2, 2, 1),
    Sketcher.Constraint("Coincident", 2, 2, 3, 1),
    Sketcher.Constraint("Coincident", 3, 2, 0, 1),
    Sketcher.Constraint("Parallel", 1, 3),
    Sketcher.Constraint("Equal", 0, 2),
    Sketcher.Constraint("Angle", 1, Q("15 deg")),
    Sketcher.Constraint("Distance", 3, 3.25),
    Sketcher.Constraint("DistanceY", 1, 2, 3, 2, 5.872999),
    Sketcher.Constraint("DistanceX", 2, 2, 1, 2, 2.339801),
    Sketcher.Constraint("DistanceX", -1, 1, 1, 2, 12.245742),
    Sketcher.Constraint("DistanceY", 3, 2, -1, 1, 31.532119),
])
sketch14.setExpression("Constraints[7]", "Params.sketch14_length")
pad14 = body14.newObject("PartDesign::Pad", "Pad013")
pad14.Profile = sketch14
pad14.setExpression("Length", "Params.pad14_length")
body15 = doc.addObject("PartDesign::Body", "Body014")

# Sketch on XY plane
sketch15 = body15.newObject("Sketcher::SketchObject", "Sketch014")
sketch15.AttachmentSupport = (doc.getObject("XY_Plane014"), [""])
sketch15.MapMode = "FlatFace"
sketch15.AttachmentOffset = App.Placement(Vector(0, 0, -15), App.Rotation())
sketch15.addGeometry([
    Part.LineSegment(Vector(8.2, -38.8, 0), Vector(9.3, -44.8, 0)),
    Part.LineSegment(Vector(9.3, -44.8, 0), Vector(14.3, -43.5, 0)),
    Part.LineSegment(Vector(14.3, -43.5, 0), Vector(12.3, -37.7, 0)),
    Part.LineSegment(Vector(12.3, -37.7, 0), Vector(8.2, -38.8, 0)),
], False)
sketch15.addConstraint([
    Sketcher.Constraint("Coincident", 0, 2, 1, 1),
    Sketcher.Constraint("Coincident", 1, 2, 2, 1),
    Sketcher.Constraint("Coincident", 2, 2, 3, 1),
    Sketcher.Constraint("Coincident", 3, 2, 0, 1),
    Sketcher.Constraint("Parallel", 1, 3),
    Sketcher.Constraint("Equal", 0, 2),
    Sketcher.Constraint("Angle", 1, Q("15 deg")),
    Sketcher.Constraint("Distance", 1, 5.2),
    Sketcher.Constraint("DistanceX", 3, 2, 0, 2, 1.130702),
    Sketcher.Constraint("DistanceY", 0, 2, -1, 1, 44.81574),
    Sketcher.Constraint("DistanceX", -1, 1, 3, 2, 8.185921),
    Sketcher.Constraint("DistanceX", 2, 2, 1, 2, 2.00521),
])
sketch15.setExpression("Constraints[7]", "Params.sketch15_length")
pad15 = body15.newObject("PartDesign::Pad", "Pad014")
pad15.Profile = sketch15
pad15.setExpression("Length", "Params.pad15_length")
body16 = doc.addObject("PartDesign::Body", "Body015")

# Sketch on XY plane
sketch16 = body16.newObject("Sketcher::SketchObject", "Sketch015")
sketch16.AttachmentSupport = (doc.getObject("XY_Plane015"), [""])
sketch16.MapMode = "FlatFace"
sketch16.AttachmentOffset = App.Placement(Vector(0, 0, -15), App.Rotation())
sketch16.addGeometry([
    Part.LineSegment(Vector(14.7, -28.7, 0), Vector(17.8, -35.1, 0)),
    Part.LineSegment(Vector(17.8, -35.1, 0), Vector(21.5, -33, 0)),
    Part.LineSegment(Vector(21.5, -33, 0), Vector(17.5, -27.1, 0)),
    Part.LineSegment(Vector(17.5, -27.1, 0), Vector(14.7, -28.7, 0)),
], False)
sketch16.addConstraint([
    Sketcher.Constraint("Coincident", 0, 2, 1, 1),
    Sketcher.Constraint("Coincident", 1, 2, 2, 1),
    Sketcher.Constraint("Coincident", 2, 2, 3, 1),
    Sketcher.Constraint("Coincident", 3, 2, 0, 1),
    Sketcher.Constraint("Parallel", 1, 3),
    Sketcher.Constraint("Equal", 0, 2),
    Sketcher.Constraint("Angle", 1, Q("30 deg")),
    Sketcher.Constraint("Distance", 3, 3.25),
    Sketcher.Constraint("DistanceY", 0, 2, -1, 1, 35.108459),
    Sketcher.Constraint("DistanceX", -1, 1, 2, 2, 17.511808),
    Sketcher.Constraint("DistanceY", 2, 2, -1, 1, 27.081342),
    Sketcher.Constraint("DistanceX", 0, 2, 1, 2, 3.71927),
])
sketch16.setExpression("Constraints[7]", "Params.sketch16_length")
pad16 = body16.newObject("PartDesign::Pad", "Pad015")
pad16.Profile = sketch16
pad16.setExpression("Length", "Params.pad16_length")

doc.recompute()
